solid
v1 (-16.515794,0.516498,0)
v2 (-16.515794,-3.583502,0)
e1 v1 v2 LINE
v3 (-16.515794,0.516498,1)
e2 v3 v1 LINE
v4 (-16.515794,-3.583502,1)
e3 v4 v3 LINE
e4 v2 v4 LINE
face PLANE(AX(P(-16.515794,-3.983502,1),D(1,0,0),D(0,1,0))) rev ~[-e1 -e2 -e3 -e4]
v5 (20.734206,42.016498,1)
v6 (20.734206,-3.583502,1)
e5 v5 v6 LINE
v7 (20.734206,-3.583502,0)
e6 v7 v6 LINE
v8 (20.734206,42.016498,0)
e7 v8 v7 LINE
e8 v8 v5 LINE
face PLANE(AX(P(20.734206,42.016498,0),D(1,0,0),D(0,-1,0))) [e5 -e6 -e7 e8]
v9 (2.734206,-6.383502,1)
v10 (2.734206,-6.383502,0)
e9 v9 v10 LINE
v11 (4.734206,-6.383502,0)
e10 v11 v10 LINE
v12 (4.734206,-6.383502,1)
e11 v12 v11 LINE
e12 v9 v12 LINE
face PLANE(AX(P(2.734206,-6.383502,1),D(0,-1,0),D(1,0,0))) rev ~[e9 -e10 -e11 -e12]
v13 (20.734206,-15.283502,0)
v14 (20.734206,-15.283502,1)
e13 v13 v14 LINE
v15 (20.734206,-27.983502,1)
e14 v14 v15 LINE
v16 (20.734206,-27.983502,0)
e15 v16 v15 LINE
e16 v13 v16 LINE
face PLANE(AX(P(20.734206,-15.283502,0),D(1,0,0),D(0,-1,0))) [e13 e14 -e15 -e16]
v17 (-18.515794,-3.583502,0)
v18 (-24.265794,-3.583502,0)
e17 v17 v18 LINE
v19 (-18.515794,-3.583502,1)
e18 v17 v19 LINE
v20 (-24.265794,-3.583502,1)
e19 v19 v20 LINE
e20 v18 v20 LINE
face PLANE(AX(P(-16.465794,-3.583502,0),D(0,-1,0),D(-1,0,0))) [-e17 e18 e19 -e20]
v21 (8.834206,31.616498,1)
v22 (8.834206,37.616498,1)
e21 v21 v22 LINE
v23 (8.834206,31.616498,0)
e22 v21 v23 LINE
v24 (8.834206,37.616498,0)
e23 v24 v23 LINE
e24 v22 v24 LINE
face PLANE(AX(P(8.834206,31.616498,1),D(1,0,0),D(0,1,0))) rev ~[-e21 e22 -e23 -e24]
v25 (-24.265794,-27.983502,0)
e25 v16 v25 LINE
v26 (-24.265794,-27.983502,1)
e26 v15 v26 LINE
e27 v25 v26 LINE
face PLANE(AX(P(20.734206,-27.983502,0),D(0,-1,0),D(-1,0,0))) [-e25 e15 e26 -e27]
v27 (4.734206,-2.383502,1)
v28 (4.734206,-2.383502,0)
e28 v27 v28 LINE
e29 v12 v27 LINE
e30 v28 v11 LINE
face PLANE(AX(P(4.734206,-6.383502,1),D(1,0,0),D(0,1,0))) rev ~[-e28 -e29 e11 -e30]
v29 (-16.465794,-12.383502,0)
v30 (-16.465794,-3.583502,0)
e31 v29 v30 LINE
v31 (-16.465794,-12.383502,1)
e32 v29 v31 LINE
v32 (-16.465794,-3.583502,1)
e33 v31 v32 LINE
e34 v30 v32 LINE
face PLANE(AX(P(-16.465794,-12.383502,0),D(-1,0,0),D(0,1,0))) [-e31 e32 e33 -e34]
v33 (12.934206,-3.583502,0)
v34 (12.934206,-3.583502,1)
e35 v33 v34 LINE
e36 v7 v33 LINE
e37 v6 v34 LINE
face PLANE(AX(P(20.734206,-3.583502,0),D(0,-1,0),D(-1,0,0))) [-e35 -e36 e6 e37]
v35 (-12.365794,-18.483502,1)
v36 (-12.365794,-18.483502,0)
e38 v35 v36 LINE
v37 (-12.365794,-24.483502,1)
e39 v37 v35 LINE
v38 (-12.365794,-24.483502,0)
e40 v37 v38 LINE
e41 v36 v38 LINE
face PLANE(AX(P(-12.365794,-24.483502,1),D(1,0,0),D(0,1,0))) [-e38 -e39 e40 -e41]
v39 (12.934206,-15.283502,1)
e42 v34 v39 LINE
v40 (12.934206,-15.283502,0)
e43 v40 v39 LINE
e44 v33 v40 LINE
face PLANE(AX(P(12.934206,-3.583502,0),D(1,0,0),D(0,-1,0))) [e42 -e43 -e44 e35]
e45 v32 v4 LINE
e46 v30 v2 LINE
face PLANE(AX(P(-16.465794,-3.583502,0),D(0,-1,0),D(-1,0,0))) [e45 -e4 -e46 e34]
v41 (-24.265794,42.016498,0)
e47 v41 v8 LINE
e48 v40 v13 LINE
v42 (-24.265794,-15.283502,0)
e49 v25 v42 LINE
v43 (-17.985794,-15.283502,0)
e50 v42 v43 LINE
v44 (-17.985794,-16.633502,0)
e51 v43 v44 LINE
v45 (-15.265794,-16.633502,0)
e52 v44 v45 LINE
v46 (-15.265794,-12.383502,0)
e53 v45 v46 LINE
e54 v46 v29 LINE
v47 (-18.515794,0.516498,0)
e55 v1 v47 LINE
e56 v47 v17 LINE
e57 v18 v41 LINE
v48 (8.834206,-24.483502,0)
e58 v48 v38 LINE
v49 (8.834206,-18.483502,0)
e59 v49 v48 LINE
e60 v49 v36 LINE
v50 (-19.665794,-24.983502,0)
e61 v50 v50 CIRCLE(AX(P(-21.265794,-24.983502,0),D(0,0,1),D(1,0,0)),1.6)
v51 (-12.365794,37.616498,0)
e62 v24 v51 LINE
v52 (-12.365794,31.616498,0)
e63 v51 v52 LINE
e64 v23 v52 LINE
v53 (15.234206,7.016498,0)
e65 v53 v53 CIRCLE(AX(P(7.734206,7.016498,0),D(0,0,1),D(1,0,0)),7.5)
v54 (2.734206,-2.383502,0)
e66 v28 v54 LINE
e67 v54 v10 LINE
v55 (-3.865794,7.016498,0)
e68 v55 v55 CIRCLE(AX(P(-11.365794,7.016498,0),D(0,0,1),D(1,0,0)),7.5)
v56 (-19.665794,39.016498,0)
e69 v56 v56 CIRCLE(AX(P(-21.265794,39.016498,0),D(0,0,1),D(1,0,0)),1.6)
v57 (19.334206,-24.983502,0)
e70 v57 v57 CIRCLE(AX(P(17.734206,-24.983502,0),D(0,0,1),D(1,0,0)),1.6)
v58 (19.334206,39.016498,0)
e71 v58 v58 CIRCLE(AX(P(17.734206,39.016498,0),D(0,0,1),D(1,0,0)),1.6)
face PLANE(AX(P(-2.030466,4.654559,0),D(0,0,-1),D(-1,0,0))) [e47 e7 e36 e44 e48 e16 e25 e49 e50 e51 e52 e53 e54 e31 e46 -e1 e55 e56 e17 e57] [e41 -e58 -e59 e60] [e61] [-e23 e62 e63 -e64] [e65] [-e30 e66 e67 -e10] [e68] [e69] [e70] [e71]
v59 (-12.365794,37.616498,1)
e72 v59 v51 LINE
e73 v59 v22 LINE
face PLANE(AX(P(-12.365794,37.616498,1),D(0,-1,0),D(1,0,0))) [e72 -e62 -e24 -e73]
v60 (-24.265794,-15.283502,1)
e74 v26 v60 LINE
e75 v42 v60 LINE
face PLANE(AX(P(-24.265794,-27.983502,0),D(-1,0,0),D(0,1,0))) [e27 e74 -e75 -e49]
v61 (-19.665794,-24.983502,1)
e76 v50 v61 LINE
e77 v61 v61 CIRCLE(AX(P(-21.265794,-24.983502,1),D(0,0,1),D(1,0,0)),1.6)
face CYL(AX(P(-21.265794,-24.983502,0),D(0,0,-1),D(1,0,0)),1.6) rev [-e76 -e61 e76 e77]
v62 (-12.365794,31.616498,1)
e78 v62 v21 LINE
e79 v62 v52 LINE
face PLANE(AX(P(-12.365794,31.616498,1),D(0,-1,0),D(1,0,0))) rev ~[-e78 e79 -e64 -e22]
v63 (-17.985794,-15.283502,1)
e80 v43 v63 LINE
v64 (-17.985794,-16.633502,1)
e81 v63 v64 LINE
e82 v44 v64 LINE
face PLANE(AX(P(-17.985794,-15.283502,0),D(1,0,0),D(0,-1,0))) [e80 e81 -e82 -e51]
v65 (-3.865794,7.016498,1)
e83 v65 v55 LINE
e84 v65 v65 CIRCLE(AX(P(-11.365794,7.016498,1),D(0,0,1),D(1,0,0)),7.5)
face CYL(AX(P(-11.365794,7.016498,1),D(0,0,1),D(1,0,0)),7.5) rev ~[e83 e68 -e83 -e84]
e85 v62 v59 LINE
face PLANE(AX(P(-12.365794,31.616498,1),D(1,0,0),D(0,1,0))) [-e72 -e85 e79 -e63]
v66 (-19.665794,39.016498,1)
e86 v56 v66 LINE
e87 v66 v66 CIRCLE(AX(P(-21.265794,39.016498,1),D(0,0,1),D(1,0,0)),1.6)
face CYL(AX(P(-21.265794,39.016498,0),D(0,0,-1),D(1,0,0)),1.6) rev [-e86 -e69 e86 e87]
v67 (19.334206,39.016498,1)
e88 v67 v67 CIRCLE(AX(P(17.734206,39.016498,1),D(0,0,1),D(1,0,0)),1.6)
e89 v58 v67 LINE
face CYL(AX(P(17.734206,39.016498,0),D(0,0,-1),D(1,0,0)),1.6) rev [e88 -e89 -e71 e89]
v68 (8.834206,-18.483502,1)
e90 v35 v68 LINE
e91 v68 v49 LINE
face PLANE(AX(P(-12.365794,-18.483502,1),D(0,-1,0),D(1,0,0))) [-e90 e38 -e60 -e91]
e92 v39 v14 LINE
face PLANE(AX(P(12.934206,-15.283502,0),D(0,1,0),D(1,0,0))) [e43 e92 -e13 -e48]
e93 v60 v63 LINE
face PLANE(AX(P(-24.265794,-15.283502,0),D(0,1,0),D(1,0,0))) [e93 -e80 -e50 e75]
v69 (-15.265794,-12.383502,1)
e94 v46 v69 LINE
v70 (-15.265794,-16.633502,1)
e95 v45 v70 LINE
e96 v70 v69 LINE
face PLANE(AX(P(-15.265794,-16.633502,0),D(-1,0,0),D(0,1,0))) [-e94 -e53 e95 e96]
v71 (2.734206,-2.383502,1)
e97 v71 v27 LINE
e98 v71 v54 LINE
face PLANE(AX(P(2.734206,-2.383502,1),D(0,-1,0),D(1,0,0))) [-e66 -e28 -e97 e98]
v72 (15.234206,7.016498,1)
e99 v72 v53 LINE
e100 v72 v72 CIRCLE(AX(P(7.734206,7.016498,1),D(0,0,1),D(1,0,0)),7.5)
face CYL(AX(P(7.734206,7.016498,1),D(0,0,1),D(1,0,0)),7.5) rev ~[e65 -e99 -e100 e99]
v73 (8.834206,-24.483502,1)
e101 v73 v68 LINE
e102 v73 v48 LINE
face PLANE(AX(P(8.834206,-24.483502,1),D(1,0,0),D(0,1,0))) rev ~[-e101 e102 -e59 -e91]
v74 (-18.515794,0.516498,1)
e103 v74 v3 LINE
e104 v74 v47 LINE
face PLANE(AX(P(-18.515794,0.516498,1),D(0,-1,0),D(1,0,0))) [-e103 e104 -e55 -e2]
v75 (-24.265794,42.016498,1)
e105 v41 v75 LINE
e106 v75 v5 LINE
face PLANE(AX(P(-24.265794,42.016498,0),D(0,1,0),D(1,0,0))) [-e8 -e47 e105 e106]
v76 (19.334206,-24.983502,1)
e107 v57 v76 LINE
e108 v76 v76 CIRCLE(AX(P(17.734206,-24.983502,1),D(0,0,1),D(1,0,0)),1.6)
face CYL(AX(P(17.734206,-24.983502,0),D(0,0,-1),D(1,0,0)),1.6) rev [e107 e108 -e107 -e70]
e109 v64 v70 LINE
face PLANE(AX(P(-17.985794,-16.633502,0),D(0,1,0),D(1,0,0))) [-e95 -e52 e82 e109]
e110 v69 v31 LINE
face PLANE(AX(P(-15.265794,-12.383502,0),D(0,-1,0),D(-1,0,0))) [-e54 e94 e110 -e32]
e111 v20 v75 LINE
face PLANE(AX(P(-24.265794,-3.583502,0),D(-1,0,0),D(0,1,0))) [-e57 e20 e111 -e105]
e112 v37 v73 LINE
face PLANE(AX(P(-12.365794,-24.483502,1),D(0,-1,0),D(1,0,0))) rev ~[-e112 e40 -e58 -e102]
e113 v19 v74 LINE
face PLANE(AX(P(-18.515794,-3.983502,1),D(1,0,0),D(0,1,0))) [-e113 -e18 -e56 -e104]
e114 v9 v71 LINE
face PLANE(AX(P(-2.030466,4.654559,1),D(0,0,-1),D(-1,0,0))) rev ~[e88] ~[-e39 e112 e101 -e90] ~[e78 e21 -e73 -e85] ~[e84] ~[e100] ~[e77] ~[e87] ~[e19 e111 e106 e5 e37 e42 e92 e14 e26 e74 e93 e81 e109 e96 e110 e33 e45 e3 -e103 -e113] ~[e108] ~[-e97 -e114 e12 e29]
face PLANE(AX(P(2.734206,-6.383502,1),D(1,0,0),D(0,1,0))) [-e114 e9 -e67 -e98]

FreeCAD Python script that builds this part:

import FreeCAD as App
import Part
import Sketcher


def add_polygon(sketch, points):
    """Adds a closed chain of lines whose ends are joined by coincident constraints."""
    first, n = sketch.GeometryCount, len(points)
    for a, b in zip(points, points[1:] + points[:1]):
        sketch.addGeometry(Part.LineSegment(App.Vector(*a, 0), App.Vector(*b, 0)), False)
    for i in range(n):
        sketch.addConstraint(Sketcher.Constraint("Coincident", first + i, 2, first + (i + 1) % n, 1))

doc = App.newDocument("Part")
body = doc.addObject("PartDesign::Body", "Body")

sketch1 = body.newObject("Sketcher::SketchObject", "Sketch")
sketch1.AttachmentSupport = (doc.getObject("XY_Plane"), [""])
sketch1.MapMode = "FlatFace"
add_polygon(sketch1, [(20.7, -28), (20.7, -15.3), (12.9, -15.3), (12.9, -3.6), (20.7, -3.6), (20.7, 42), (-24.3, 42), (-24.3, -3.6), (-16.5, -3.6), (-16.5, -12.4), (-15.3, -12.4), (-15.3, -16.6), (-18, -16.6), (-18, -15.3), (-24.3, -15.3), (-24.3, -28)])
sketch1.addGeometry(Part.Circle(App.Vector(17.7, -25, 0), App.Vector(0, 0, 1), 1.6), False)
sketch1.addGeometry(Part.Circle(App.Vector(-21.3, -25, 0), App.Vector(0, 0, 1), 1.6), False)
sketch1.addGeometry(Part.Circle(App.Vector(17.7, 39, 0), App.Vector(0, 0, 1), 1.6), False)
sketch1.addGeometry(Part.Circle(App.Vector(-21.3, 39, 0), App.Vector(0, 0, 1), 1.6), False)
sketch1.addConstraint([
    Sketcher.Constraint("Vertical", 0),
    Sketcher.Constraint("Horizontal", 1),
    Sketcher.Constraint("Vertical", 2),
    Sketcher.Constraint("Horizontal", 3),
    Sketcher.Constraint("Vertical", 4),
    Sketcher.Constraint("Horizontal", 5),
    Sketcher.Constraint("Vertical", 6),
    Sketcher.Constraint("Horizontal", 7),
    Sketcher.Constraint("Vertical", 8),
    Sketcher.Constraint("Horizontal", 9),
    Sketcher.Constraint("Vertical", 10),
    Sketcher.Constraint("Horizontal", 11),
    Sketcher.Constraint("Vertical", 12),
    Sketcher.Constraint("Horizontal", 13),
    Sketcher.Constraint("Vertical", 14),
    Sketcher.Constraint("Horizontal", 15),
    Sketcher.Constraint("Equal", 16, 17),
    Sketcher.Constraint("Equal", 17, 18),
    Sketcher.Constraint("Equal", 18, 19),
    Sketcher.Constraint("Horizontal", 16, 3, 17, 3),
    Sketcher.Constraint("Horizontal", 18, 3, 19, 3),
    Sketcher.Constraint("Horizontal", 3, 2, 6, 2),
    Sketcher.Constraint("Horizontal", 1, 2, 12, 2),
    Sketcher.Constraint("Vertical", 16, 3, 18, 3),
    Sketcher.Constraint("Vertical", 17, 3, 19, 3),
    Sketcher.Constraint("Vertical", 0, 2, 3, 2),
    Sketcher.Constraint("Vertical", 6, 2, 13, 2),
    Sketcher.Constraint("Equal", 3, 7),
    Sketcher.Constraint("Diameter", 16, 3.2),
    Sketcher.Constraint("DistanceX", 5, 2, 5, 1, 45.0),
    Sketcher.Constraint("DistanceX", 1, 2, 1, 1, 7.8),
    Sketcher.Constraint("DistanceX", 9, 1, 9, 2, 1.2),
    Sketcher.Constraint("DistanceY", 0, 1, 0, 2, 12.7),
    Sketcher.Constraint("DistanceY", 2, 1, 2, 2, 11.7),
    Sketcher.Constraint("DistanceY", 4, 1, 4, 2, 45.6),
    Sketcher.Constraint("DistanceY", 8, 2, 8, 1, 8.8),
    Sketcher.Constraint("DistanceX", 17, 3, 16, 3, 39.0),
    Sketcher.Constraint("DistanceY", 16, 3, 18, 3, 64.0),
    Sketcher.Constraint("DistanceX", 16, 3, 0, 2, 3.0),
    Sketcher.Constraint("DistanceY", 18, 3, 4, 2, 3.0),
    Sketcher.Constraint("DistanceX", 11, 2, 11, 1, 2.72),
    Sketcher.Constraint("DistanceY", 10, 2, 10, 1, 4.25),
    Sketcher.Constraint("DistanceY", 16, 3, -1, 1, 24.983502),
    Sketcher.Constraint("DistanceX", -1, 1, 16, 3, 17.734206),
])
pad1 = body.newObject("PartDesign::Pad", "Pad")
pad1.Profile = sketch1
pad1.Length = 1

sketch2 = body.newObject("Sketcher::SketchObject", "Sketch001")
sketch2.AttachmentSupport = (doc.getObject("XY_Plane"), [""])
sketch2.MapMode = "FlatFace"
sketch2.AttachmentOffset = App.Placement(App.Vector(0, 0, 1), App.Rotation())
add_polygon(sketch2, [(-18.5, 0.5), (-18.5, -4), (-16.5, -4), (-16.5, 0.5)])
add_polygon(sketch2, [(2.7, -2.4), (2.7, -6.4), (4.7, -6.4), (4.7, -2.4)])
sketch2.addConstraint([
    Sketcher.Constraint("Vertical", 0),
    Sketcher.Constraint("Horizontal", 1),
    Sketcher.Constraint("Vertical", 2),
    Sketcher.Constraint("Horizontal", 3),
    Sketcher.Constraint("Vertical", 4),
    Sketcher.Constraint("Horizontal", 5),
    Sketcher.Constraint("Vertical", 6),
    Sketcher.Constraint("Horizontal", 7),
    Sketcher.Constraint("Equal", 3, 5),
    Sketcher.Constraint("DistanceX", 1, 1, 1, 2, 2.0),
    Sketcher.Constraint("DistanceY", 4, 2, 4, 1, 4.0),
    Sketcher.Constraint("DistanceY", 0, 2, 0, 1, 4.5),
    Sketcher.Constraint("DistanceY", 4, 2, 1, 2, 2.4),
    Sketcher.Constraint("DistanceX", 1, 2, 4, 2, 19.25),
    Sketcher.Constraint("DistanceY", 0, 2, -1, 1, 3.983502),
    Sketcher.Constraint("DistanceX", 0, 2, -1, 1, 18.515794),
])
pocket1 = body.newObject("PartDesign::Pocket", "Pocket")
pocket1.Profile = sketch2
pocket1.Length = 4

sketch3 = body.newObject("Sketcher::SketchObject", "Sketch002")
sketch3.AttachmentSupport = (doc.getObject("XY_Plane"), [""])
sketch3.MapMode = "FlatFace"
sketch3.AttachmentOffset = App.Placement(App.Vector(0, 0, 1), App.Rotation())
add_polygon(sketch3, [(-12, -18), (-12, -24), (9, -24), (9, -18)])
add_polygon(sketch3, [(-12, 38), (-12, 32), (9, 32), (9, 38)])
sketch3.addConstraint([
    Sketcher.Constraint("Vertical", 0),
    Sketcher.Constraint("Horizontal", 1),
    Sketcher.Constraint("Vertical", 2),
    Sketcher.Constraint("Horizontal", 3),
    Sketcher.Constraint("Vertical", 4),
    Sketcher.Constraint("Horizontal", 5),
    Sketcher.Constraint("Vertical", 6),
    Sketcher.Constraint("Horizontal", 7),
    Sketcher.Constraint("Vertical", 3, 2, 4, 2),
    Sketcher.Constraint("Vertical", 2, 2, 5, 2),
    Sketcher.Constraint("Equal", 2, 4),
    Sketcher.Constraint("DistanceY", 0, 2, 0, 1, 6.0),
    Sketcher.Constraint("DistanceX", 1, 1, 1, 2, 21.2),
    Sketcher.Constraint("DistanceY", 3, 2, 4, 2, 50.1),
    Sketcher.Constraint("DistanceY", 0, 2, -1, 1, 24.483502),
    Sketcher.Constraint("DistanceX", 0, 2, -1, 1, 12.365794),
])
pocket2 = body.newObject("PartDesign::Pocket", "Pocket001")
pocket2.Profile = sketch3
pocket2.Length = 4

sketch4 = body.newObject("Sketcher::SketchObject", "Sketch003")
sketch4.AttachmentSupport = (doc.getObject("XY_Plane"), [""])
sketch4.MapMode = "FlatFace"
sketch4.AttachmentOffset = App.Placement(App.Vector(0, 0, 1), App.Rotation())
sketch4.addGeometry([
    Part.Circle(App.Vector(-11, 7, 0), App.Vector(0, 0, 1), 8),
    Part.Circle(App.Vector(8, 7, 0), App.Vector(0, 0, 1), 8),
], False)
sketch4.addConstraint([
    Sketcher.Constraint("Equal", 0, 1),
    Sketcher.Constraint("Horizontal", 0, 3, 1, 3),
    Sketcher.Constraint("Diameter", 0, 15.0),
    Sketcher.Constraint("DistanceX", 0, 3, 1, 3, 19.1),
    Sketcher.Constraint("DistanceY", -1, 1, 0, 3, 7.016498),
    Sketcher.Constraint("DistanceX", 0, 3, -1, 1, 11.365794),
])
pocket3 = body.newObject("PartDesign::Pocket", "Pocket002")
pocket3.Profile = sketch4
pocket3.Length = 4

doc.recompute()
